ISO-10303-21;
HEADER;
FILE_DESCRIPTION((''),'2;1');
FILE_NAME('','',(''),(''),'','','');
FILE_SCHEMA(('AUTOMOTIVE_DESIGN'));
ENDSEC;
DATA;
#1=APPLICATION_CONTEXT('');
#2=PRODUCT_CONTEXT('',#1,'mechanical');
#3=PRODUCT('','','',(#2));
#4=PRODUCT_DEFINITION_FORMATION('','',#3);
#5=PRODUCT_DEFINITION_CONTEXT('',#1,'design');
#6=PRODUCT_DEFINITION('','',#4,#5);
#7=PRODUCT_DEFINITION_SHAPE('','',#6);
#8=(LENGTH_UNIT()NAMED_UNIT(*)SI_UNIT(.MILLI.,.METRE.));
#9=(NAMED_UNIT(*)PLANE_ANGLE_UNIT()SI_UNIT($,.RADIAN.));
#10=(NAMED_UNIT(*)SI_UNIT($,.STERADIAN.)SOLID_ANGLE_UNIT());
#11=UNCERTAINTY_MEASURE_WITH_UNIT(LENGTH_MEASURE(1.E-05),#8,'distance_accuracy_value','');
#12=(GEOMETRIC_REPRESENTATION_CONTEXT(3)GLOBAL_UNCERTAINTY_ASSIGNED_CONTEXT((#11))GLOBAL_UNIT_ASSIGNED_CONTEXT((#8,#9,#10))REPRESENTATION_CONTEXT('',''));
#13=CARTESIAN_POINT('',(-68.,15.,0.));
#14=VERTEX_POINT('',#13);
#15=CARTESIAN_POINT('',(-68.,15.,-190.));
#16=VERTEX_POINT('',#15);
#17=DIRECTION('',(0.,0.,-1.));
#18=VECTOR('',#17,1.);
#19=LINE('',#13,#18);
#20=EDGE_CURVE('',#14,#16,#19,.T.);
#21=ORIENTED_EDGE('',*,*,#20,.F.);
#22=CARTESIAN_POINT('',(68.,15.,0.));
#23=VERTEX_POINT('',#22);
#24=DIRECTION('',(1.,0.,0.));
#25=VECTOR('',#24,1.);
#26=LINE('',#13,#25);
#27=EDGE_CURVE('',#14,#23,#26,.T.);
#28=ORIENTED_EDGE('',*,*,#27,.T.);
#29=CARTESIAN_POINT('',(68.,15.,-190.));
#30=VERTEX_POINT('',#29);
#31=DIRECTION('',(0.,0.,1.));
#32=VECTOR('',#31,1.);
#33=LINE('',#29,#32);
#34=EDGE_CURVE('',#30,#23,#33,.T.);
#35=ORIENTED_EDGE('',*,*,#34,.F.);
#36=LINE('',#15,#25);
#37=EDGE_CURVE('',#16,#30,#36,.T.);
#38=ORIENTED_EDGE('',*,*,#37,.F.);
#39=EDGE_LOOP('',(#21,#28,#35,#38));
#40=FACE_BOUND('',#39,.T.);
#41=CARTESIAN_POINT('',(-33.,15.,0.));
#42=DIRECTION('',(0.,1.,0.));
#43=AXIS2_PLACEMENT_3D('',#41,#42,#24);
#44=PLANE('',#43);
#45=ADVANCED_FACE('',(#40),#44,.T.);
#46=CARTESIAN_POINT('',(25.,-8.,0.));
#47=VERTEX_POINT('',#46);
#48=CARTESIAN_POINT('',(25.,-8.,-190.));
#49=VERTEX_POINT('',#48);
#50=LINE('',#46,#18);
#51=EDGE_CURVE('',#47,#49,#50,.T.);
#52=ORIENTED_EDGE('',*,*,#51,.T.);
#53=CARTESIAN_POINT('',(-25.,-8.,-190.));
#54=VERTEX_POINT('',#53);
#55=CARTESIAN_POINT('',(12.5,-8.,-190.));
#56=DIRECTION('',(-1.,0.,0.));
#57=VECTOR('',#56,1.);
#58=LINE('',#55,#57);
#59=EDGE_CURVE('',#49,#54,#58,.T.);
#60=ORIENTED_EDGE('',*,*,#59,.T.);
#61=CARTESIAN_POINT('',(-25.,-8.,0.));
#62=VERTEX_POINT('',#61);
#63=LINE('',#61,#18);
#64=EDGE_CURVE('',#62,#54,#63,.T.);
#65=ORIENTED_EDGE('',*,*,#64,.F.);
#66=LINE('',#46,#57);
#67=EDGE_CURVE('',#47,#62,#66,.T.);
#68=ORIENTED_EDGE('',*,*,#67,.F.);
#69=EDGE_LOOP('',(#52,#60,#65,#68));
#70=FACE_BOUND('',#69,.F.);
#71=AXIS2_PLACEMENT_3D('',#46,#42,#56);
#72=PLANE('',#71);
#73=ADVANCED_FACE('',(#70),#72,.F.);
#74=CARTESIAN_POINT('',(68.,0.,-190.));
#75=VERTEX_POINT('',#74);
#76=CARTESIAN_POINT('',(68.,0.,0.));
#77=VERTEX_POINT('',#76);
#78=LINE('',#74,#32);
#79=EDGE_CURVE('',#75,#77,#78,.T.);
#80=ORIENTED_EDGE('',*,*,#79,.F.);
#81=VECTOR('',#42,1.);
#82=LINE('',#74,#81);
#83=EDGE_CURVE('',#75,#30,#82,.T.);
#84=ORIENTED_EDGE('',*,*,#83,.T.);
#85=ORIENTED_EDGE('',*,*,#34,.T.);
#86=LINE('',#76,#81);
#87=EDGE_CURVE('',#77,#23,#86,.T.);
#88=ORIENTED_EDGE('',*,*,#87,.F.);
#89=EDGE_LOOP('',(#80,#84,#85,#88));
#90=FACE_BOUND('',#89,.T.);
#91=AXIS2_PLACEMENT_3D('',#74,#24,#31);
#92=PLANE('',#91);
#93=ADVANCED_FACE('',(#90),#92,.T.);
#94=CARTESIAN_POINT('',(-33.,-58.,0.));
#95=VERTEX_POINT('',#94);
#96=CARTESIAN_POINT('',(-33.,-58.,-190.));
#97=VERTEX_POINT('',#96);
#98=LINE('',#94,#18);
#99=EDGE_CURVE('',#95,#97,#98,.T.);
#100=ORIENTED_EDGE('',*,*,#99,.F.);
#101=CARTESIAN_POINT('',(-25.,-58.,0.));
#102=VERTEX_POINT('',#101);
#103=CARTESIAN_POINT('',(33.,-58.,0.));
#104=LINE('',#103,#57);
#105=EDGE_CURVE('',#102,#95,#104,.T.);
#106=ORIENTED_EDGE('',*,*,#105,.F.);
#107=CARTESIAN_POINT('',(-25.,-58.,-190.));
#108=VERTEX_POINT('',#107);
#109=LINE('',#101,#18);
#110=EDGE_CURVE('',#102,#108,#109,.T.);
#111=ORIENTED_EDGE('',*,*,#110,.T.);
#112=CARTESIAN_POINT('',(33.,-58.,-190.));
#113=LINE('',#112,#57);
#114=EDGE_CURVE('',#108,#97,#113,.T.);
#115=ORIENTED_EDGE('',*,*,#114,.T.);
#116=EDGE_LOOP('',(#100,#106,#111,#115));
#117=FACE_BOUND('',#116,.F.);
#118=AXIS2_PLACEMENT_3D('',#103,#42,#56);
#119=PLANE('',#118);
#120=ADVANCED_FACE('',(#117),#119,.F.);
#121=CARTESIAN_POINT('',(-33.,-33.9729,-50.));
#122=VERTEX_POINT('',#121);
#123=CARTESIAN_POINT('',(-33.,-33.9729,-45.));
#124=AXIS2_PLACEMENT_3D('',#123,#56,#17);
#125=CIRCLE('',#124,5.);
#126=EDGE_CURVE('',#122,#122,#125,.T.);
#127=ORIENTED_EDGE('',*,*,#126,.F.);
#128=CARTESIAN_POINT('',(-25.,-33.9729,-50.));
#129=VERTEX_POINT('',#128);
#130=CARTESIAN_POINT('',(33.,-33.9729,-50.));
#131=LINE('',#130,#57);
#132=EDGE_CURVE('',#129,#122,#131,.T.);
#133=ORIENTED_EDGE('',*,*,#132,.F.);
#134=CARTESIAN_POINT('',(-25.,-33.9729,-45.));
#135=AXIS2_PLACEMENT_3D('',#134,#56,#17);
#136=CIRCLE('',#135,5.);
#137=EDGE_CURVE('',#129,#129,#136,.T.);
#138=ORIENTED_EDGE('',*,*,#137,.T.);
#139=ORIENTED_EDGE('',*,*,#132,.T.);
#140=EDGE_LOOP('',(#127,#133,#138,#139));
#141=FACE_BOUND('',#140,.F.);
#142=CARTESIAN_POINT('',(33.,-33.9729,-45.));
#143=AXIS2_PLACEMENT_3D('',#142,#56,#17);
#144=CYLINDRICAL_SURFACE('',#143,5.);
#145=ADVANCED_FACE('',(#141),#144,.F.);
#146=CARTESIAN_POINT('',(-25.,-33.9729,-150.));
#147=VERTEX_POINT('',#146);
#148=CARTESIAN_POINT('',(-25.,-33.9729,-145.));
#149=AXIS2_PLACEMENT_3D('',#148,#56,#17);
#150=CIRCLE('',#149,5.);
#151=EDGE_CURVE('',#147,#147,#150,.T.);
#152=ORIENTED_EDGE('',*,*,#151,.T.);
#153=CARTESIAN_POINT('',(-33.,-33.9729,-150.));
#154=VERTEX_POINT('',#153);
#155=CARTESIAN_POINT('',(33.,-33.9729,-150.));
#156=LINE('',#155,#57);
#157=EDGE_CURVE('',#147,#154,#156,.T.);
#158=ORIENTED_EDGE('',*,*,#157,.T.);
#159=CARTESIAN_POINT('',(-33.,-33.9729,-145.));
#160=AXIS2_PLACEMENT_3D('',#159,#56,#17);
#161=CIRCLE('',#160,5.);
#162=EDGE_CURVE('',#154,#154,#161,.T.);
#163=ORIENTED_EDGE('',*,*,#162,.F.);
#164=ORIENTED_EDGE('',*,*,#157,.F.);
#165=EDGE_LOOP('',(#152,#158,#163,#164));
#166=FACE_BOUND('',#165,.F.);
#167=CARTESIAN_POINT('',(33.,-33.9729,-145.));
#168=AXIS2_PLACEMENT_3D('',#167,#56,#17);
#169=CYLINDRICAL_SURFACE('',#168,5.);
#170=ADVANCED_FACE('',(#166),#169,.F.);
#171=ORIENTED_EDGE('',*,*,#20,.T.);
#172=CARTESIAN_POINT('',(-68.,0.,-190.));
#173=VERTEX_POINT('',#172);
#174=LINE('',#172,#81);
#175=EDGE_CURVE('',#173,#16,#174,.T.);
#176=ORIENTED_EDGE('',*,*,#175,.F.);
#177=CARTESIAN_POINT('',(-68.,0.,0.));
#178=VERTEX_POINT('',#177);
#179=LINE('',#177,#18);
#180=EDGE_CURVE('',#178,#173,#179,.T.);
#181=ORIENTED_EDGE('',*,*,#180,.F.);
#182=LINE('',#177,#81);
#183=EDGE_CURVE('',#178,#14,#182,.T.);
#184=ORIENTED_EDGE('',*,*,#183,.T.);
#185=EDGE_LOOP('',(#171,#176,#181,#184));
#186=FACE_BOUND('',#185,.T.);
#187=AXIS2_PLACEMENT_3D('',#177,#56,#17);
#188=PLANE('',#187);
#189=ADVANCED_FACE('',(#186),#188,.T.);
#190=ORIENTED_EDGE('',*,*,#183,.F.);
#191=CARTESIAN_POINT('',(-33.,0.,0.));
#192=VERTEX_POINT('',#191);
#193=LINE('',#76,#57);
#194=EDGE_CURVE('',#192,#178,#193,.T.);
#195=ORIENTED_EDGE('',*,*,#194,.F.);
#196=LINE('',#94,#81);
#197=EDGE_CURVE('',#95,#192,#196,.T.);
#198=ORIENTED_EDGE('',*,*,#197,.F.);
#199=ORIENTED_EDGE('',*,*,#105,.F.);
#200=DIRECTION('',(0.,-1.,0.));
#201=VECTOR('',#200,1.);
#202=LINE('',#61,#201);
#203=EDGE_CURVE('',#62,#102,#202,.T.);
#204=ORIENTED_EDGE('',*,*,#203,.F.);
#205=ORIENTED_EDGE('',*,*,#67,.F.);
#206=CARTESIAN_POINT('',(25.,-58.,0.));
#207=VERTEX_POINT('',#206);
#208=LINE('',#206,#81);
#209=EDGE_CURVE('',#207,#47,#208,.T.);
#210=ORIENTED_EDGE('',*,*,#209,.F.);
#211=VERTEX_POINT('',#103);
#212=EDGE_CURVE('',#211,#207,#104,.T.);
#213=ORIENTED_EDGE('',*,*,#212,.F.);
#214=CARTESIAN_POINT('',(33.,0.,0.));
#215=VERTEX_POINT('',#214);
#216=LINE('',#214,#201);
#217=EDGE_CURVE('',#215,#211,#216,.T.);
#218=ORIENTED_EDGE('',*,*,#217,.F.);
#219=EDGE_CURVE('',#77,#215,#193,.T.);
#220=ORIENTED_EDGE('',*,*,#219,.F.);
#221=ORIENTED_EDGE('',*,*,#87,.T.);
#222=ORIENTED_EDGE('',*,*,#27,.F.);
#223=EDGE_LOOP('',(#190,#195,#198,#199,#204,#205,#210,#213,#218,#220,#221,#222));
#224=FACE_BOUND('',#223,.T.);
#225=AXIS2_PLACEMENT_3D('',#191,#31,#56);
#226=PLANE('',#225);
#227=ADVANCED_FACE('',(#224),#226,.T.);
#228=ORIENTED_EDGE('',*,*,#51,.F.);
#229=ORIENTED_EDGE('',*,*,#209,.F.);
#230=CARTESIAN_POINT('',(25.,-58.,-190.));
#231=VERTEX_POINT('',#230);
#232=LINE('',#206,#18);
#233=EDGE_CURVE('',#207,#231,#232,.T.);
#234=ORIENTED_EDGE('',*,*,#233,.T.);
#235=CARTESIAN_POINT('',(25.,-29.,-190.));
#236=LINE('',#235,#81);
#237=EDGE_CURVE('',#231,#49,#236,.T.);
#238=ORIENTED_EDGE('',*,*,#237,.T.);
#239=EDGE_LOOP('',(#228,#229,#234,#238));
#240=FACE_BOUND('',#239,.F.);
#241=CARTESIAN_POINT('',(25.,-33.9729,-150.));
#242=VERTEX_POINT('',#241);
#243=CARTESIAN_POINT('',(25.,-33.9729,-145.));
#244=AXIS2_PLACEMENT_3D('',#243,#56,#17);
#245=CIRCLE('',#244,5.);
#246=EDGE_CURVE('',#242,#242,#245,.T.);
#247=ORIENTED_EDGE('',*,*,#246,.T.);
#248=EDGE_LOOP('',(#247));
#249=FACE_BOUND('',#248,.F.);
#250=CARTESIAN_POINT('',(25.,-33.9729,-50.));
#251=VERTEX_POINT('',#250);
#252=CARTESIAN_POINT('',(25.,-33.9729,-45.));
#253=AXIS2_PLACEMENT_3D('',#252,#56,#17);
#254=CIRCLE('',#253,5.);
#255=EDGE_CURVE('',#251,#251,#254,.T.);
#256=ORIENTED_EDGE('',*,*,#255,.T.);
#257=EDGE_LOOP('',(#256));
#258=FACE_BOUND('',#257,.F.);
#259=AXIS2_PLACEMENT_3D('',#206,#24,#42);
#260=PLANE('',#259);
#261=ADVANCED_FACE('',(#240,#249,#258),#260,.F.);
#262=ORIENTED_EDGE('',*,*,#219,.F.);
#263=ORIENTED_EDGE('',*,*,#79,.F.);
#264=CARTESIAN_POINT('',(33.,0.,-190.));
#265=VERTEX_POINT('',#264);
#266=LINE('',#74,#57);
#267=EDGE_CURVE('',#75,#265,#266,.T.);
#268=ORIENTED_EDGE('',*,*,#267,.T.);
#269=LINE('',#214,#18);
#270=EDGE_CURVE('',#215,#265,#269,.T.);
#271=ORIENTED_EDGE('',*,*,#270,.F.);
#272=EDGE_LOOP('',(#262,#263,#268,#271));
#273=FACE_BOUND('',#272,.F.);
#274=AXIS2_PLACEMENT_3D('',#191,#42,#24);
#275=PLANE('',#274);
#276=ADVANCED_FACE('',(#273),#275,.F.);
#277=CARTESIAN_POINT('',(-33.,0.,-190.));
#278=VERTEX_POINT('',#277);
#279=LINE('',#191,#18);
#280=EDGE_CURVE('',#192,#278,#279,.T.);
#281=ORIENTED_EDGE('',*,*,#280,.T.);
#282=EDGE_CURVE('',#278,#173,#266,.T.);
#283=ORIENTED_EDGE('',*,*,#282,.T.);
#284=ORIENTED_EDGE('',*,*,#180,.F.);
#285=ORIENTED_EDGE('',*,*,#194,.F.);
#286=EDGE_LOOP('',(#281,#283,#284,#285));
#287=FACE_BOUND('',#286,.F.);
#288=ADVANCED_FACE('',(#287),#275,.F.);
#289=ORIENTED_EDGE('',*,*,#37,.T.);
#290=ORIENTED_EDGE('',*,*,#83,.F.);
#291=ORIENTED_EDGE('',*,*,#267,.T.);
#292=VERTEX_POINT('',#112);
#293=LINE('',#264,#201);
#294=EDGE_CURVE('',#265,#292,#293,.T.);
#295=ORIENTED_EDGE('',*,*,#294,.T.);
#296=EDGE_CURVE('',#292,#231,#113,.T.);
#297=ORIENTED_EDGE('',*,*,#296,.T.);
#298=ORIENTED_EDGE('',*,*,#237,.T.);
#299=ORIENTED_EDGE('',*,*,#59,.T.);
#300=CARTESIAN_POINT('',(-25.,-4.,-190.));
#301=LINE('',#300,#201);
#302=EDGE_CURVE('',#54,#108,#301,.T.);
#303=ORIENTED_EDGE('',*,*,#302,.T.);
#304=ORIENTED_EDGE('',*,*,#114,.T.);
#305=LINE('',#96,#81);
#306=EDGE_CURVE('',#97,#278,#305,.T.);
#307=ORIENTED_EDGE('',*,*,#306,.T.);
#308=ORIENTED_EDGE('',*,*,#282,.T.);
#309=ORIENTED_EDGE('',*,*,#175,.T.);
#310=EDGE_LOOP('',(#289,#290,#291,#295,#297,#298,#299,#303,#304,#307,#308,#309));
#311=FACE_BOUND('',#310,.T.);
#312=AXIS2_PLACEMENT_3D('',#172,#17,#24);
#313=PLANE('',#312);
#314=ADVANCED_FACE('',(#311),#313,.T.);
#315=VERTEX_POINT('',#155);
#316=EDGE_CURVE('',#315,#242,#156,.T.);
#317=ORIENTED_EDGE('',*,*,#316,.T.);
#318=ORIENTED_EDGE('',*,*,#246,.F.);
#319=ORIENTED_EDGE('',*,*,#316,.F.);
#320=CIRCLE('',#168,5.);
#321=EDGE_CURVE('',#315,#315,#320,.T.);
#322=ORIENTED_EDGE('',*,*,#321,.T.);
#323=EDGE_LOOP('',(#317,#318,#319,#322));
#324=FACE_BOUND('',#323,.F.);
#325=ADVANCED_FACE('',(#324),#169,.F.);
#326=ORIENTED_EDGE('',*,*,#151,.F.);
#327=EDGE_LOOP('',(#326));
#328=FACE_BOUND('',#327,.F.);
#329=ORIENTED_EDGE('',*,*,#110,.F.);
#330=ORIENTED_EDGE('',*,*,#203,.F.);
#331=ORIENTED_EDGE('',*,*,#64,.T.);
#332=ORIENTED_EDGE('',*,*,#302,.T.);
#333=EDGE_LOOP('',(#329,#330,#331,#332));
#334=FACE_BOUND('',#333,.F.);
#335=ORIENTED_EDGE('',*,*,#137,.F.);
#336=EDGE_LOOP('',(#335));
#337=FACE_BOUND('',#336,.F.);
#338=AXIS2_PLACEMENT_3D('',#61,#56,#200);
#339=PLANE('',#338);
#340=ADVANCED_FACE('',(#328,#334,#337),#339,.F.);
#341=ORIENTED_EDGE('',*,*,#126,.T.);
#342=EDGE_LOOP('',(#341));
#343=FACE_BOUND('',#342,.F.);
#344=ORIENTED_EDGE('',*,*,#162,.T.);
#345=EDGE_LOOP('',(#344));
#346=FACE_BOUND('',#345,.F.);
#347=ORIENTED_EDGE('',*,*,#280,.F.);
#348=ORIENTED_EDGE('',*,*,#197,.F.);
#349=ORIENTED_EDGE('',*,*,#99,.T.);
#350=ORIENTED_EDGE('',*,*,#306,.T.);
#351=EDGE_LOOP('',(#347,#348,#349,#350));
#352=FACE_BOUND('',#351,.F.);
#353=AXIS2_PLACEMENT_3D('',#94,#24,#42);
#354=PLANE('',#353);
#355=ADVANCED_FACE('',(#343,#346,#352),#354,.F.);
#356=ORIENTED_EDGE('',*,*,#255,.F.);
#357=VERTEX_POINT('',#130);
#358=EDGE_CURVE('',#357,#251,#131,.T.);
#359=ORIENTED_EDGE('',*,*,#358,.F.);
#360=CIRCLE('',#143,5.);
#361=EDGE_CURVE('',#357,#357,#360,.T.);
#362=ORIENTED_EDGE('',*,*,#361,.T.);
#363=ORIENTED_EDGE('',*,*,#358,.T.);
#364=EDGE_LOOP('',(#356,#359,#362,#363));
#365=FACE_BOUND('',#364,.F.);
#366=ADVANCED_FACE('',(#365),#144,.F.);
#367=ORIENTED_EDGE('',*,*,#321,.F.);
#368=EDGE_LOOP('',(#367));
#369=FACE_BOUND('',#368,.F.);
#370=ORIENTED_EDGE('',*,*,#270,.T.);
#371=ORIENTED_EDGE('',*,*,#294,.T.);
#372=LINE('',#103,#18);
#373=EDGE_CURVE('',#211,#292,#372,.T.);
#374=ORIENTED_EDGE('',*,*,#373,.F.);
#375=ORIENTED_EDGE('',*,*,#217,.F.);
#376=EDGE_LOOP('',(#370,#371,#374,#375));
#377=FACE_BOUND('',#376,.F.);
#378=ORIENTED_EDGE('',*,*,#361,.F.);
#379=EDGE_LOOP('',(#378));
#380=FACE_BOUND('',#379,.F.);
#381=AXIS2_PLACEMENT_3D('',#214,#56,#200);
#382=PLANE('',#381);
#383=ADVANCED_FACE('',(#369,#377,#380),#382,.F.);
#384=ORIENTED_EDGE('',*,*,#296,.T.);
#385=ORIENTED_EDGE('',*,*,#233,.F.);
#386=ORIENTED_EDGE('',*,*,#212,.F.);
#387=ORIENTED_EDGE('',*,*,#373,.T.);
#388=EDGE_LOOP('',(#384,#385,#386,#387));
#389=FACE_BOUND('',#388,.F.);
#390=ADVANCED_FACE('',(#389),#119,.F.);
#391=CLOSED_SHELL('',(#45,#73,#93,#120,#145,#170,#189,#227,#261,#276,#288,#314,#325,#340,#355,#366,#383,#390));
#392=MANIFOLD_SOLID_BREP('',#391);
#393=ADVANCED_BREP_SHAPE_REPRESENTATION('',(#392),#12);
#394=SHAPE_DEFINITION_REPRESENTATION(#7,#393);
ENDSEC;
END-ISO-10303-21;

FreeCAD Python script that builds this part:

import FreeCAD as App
import Part
import Sketcher

V = App.Vector


def add_polygon(sketch, points):
    """Adds a closed chain of lines whose ends are joined by coincident constraints."""
    first, n = sketch.GeometryCount, len(points)
    for a, b in zip(points, points[1:] + points[:1]):
        sketch.addGeometry(Part.LineSegment(App.Vector(*a, 0), App.Vector(*b, 0)), False)
    for i in range(n):
        sketch.addConstraint(Sketcher.Constraint("Coincident", first + i, 2, first + (i + 1) % n, 1))

doc = App.newDocument("Part")
body = doc.addObject("PartDesign::Body", "Body")

# Sketch on XY plane
sketch1 = body.newObject("Sketcher::SketchObject", "Sketch")
sketch1.AttachmentSupport = (doc.getObject("XY_Plane"), [""])
sketch1.MapMode = "FlatFace"
add_polygon(sketch1, [(33, 0), (-33, 0), (-33, -58), (33, -58)])  # lines 0-3
sketch1.addConstraint([
    Sketcher.Constraint("Horizontal", 0),
    Sketcher.Constraint("Vertical", 1),
    Sketcher.Constraint("Horizontal", 2),
    Sketcher.Constraint("Vertical", 3),
    Sketcher.Constraint("Symmetric", 0, 2, 3, 2, -1, 1),
    Sketcher.Constraint("DistanceX", 0, 2, 0, 1, 66.0),
    Sketcher.Constraint("DistanceY", 1, 2, 1, 1, 58.0),
])
pad1 = body.newObject("PartDesign::Pad", "Pad")
pad1.Profile = sketch1
pad1.Length = 190
pad1.Reversed = True

# Sketch on XY plane
sketch2 = body.newObject("Sketcher::SketchObject", "Sketch001")
sketch2.AttachmentSupport = (doc.getObject("XY_Plane"), [""])
sketch2.MapMode = "FlatFace"
add_polygon(sketch2, [(-25, -8), (-25, -58), (25, -58), (25, -8)])  # lines 0-3
sketch2.addConstraint([
    Sketcher.Constraint("Vertical", 0),
    Sketcher.Constraint("Horizontal", 1),
    Sketcher.Constraint("Vertical", 2),
    Sketcher.Constraint("Horizontal", 3),
    Sketcher.Constraint("Equal", 3, 0),
    Sketcher.Constraint("DistanceX", 1, 1, 1, 2, 50.0),
    Sketcher.Constraint("DistanceX", 0, 2, -1, 1, 25.0),
    Sketcher.Constraint("DistanceY", 0, 2, -1, 1, 58.0),
])
pocket1 = body.newObject("PartDesign::Pocket", "Pocket")
pocket1.Profile = sketch2
pocket1.Type = "ThroughAll"

# Sketch on XZ plane
sketch3 = body.newObject("Sketcher::SketchObject", "Sketch002")
sketch3.AttachmentSupport = (doc.getObject("XZ_Plane"), [""])
sketch3.MapMode = "FlatFace"
add_polygon(sketch3, [(-68, -190), (-68, 0), (68, 0), (68, -190)])  # lines 0-3
sketch3.addConstraint([
    Sketcher.Constraint("Vertical", 0),
    Sketcher.Constraint("Horizontal", 1),
    Sketcher.Constraint("Vertical", 2),
    Sketcher.Constraint("Horizontal", 3),
    Sketcher.Constraint("Symmetric", 0, 2, 1, 2, -1, 1),
    Sketcher.Constraint("DistanceX", 1, 1, 1, 2, 136.0),
    Sketcher.Constraint("DistanceY", 0, 1, 0, 2, 190.0),
])
pad2 = body.newObject("PartDesign::Pad", "Pad001")
pad2.Profile = sketch3
pad2.Length = 15
pad2.Reversed = True

# Sketch on YZ plane
sketch4 = body.newObject("Sketcher::SketchObject", "Sketch003")
sketch4.AttachmentSupport = (doc.getObject("YZ_Plane"), [""])
sketch4.MapMode = "FlatFace"
sketch4.AttachmentOffset = App.Placement(V(0, 0, 33), App.Rotation())
sketch4.addGeometry([
    Part.Circle(V(-33.9729, -45, 0), V(0, 0, 1), 5),
    Part.Circle(V(-33.9729, -145, 0), V(0, 0, 1), 5),
], False)
sketch4.addConstraint([
    Sketcher.Constraint("Equal", 0, 1),
    Sketcher.Constraint("Vertical", 0, 3, 1, 3),
    Sketcher.Constraint("Diameter", 0, 10.0),
    Sketcher.Constraint("DistanceY", 0, 3, -1, 1, 45.0),
    Sketcher.Constraint("DistanceY", 1, 3, -1, 1, 145.0),
    Sketcher.Constraint("DistanceX", 0, 3, -1, 1, 33.973),
])
doc.recompute()
hole = body.newObject("PartDesign::Hole", "Hole")
hole.Profile = sketch4
hole.ThreadType = "None"
hole.Diameter = 10
hole.DepthType = "ThroughAll"

doc.recompute()
